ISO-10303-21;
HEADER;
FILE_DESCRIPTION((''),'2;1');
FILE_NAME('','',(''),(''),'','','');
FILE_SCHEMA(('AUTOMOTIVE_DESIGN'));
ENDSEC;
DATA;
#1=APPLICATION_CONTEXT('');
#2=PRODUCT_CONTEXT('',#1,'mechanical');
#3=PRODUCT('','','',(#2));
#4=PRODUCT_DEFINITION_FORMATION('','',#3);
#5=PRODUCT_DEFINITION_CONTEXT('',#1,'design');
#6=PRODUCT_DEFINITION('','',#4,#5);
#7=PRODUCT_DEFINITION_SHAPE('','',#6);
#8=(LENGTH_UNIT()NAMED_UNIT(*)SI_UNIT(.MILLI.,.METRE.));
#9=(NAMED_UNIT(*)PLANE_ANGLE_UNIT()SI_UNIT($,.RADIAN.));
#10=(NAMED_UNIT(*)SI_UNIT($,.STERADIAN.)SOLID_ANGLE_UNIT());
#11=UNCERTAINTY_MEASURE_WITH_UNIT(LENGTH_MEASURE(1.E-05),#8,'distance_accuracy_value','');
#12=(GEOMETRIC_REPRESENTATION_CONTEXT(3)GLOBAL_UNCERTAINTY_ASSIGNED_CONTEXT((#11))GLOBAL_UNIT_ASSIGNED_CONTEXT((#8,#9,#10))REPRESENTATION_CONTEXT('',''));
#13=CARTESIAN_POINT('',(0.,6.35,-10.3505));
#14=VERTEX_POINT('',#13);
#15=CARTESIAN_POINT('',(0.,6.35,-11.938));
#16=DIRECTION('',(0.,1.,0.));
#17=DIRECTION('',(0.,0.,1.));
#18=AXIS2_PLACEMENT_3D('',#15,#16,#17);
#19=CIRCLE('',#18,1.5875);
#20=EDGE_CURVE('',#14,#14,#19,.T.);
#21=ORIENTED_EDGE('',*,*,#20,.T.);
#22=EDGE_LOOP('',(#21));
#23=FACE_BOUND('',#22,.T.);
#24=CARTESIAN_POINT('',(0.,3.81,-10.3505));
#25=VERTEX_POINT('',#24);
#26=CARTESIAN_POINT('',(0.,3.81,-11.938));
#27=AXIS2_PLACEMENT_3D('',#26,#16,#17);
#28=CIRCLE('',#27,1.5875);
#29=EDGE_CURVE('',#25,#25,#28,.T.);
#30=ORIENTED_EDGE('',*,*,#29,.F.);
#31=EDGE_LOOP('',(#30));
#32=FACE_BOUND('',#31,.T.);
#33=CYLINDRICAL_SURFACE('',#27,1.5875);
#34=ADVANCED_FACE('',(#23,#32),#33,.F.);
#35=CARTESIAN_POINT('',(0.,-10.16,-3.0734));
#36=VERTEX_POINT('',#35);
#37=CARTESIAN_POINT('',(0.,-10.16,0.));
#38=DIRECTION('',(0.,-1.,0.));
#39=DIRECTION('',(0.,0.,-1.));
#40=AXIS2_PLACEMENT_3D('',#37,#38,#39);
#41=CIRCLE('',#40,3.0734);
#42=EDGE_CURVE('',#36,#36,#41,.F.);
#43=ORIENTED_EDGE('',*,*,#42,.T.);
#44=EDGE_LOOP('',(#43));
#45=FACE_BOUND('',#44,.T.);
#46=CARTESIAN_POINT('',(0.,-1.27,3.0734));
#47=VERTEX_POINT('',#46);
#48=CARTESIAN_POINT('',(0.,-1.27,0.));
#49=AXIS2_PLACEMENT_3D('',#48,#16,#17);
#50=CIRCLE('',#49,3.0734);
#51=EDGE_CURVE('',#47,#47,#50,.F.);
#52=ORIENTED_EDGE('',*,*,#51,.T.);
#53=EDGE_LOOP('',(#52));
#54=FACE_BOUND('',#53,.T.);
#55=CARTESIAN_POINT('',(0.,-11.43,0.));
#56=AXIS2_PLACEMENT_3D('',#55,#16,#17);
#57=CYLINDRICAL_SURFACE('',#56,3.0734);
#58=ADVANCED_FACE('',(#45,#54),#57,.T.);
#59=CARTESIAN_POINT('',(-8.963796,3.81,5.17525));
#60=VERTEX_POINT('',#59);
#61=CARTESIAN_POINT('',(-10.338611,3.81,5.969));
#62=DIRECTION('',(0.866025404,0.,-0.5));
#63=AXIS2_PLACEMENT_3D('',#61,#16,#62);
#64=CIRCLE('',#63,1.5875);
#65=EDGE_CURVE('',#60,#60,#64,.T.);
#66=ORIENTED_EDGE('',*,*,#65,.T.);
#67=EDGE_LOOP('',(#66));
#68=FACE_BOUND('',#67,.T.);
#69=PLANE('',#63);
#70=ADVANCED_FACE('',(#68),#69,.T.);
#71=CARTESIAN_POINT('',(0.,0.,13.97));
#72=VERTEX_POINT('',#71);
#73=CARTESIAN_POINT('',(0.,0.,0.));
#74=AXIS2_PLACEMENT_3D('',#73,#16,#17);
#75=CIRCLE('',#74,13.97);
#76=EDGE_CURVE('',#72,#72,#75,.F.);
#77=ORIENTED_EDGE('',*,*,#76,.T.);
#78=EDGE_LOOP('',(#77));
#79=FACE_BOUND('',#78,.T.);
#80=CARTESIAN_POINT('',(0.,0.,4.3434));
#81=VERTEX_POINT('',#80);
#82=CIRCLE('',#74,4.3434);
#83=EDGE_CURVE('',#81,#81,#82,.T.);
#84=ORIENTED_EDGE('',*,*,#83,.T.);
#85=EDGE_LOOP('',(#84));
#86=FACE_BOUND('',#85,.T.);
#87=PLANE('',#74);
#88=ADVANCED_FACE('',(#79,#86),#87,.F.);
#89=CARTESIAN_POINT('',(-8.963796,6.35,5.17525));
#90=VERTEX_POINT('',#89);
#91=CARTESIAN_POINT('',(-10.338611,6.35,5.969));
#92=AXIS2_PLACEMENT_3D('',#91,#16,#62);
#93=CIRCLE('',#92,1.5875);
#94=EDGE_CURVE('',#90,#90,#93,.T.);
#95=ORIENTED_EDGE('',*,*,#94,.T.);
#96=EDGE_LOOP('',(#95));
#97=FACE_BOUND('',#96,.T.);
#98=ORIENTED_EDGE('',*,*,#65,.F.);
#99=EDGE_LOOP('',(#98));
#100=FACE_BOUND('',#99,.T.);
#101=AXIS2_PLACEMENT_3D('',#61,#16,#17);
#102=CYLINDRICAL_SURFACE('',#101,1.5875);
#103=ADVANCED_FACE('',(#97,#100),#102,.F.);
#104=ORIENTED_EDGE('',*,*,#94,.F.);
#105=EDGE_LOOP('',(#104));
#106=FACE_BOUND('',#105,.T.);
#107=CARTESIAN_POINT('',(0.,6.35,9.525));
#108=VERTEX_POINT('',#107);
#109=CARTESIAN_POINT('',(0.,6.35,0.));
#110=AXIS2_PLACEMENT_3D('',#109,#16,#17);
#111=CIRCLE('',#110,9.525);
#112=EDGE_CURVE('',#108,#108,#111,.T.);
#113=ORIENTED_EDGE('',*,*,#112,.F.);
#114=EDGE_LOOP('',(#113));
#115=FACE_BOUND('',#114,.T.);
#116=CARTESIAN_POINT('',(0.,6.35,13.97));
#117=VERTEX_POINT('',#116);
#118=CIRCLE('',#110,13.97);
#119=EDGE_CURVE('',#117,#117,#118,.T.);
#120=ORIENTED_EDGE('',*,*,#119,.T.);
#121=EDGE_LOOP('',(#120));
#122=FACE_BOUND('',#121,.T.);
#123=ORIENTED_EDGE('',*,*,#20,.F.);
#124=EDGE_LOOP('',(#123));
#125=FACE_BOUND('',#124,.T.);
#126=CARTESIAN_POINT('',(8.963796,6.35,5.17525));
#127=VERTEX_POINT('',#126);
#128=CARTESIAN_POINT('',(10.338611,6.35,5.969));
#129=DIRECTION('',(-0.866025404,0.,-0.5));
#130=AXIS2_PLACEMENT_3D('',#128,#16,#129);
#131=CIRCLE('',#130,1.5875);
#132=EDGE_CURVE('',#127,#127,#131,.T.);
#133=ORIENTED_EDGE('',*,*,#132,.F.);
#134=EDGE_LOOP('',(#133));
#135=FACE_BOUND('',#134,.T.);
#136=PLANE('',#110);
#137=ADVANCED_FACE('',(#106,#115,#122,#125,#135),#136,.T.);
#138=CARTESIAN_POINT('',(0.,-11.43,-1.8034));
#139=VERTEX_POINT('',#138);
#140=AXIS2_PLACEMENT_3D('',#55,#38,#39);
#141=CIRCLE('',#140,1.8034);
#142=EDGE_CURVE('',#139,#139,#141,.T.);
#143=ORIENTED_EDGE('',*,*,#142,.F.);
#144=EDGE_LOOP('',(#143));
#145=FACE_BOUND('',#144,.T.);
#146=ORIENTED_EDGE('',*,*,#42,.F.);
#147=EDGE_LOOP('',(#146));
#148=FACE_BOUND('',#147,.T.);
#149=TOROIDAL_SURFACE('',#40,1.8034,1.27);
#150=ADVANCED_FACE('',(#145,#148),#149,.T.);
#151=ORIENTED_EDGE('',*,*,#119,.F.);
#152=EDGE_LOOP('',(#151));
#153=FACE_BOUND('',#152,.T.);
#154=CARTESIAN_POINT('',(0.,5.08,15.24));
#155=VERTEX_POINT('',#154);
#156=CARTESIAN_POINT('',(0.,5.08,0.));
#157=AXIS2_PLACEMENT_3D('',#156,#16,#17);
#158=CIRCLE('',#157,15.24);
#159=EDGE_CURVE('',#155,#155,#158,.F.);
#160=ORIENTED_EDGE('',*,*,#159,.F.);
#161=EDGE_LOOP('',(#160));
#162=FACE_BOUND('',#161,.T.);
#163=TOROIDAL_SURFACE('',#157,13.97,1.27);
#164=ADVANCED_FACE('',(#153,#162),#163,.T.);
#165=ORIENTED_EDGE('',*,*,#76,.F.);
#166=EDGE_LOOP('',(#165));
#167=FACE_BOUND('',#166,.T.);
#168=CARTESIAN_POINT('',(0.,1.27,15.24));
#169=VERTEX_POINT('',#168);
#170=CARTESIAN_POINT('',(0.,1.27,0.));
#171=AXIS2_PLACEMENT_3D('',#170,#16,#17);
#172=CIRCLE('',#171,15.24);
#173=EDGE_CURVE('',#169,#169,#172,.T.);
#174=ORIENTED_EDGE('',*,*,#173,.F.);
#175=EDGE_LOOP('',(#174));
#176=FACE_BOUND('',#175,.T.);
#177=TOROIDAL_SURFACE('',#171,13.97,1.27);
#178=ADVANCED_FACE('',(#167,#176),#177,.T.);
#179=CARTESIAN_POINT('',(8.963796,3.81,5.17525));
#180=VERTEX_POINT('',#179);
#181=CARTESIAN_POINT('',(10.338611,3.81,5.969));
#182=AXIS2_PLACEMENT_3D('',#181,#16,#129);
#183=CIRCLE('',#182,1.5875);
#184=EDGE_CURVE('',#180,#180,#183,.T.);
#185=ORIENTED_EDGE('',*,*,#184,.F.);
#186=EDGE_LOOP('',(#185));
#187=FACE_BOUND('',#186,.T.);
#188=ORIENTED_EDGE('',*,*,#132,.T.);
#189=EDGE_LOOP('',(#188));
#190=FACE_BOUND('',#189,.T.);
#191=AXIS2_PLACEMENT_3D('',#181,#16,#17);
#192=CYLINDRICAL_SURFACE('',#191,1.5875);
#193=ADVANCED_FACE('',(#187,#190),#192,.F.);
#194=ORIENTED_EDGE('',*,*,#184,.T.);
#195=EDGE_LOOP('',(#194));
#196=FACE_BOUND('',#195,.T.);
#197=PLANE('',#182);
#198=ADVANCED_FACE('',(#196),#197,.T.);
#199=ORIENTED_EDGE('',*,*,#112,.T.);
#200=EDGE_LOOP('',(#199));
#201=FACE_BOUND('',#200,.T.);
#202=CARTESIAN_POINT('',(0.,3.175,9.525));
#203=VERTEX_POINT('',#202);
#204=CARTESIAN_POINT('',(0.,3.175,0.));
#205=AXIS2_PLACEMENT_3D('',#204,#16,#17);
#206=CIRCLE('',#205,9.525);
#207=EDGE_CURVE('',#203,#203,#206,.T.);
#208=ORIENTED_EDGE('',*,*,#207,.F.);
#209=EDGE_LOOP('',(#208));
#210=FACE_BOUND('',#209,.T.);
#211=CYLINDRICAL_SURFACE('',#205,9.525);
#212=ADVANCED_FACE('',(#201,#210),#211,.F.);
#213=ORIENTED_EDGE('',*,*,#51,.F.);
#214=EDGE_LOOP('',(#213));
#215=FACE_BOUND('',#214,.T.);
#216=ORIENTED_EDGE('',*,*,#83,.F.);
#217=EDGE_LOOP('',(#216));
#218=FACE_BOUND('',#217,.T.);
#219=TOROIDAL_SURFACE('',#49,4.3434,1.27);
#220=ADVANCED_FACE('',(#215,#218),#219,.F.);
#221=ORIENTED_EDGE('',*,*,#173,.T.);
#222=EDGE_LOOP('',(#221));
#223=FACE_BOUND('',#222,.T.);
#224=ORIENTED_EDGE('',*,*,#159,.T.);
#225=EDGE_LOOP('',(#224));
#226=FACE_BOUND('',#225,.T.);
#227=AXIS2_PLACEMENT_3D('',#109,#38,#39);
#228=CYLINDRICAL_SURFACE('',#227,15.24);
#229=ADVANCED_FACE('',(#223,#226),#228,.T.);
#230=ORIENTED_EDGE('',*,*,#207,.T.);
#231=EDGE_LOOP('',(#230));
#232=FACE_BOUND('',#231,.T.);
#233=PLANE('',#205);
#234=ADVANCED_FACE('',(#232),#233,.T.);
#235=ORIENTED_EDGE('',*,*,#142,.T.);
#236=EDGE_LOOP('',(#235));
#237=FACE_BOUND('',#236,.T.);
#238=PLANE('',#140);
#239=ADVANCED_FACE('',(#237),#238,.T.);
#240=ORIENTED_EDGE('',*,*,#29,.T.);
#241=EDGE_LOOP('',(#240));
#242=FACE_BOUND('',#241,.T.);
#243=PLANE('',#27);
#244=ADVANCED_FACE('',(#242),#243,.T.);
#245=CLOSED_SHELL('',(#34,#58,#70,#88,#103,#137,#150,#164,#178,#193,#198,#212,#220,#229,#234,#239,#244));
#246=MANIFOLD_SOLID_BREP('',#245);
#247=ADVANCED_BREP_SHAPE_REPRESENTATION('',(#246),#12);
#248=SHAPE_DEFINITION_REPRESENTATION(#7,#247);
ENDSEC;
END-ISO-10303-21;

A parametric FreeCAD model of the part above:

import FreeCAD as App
import Part
import Sketcher

V = App.Vector
Q = App.Units.Quantity


def edges_at(feature, points):
    """Names of the edges that pass closest to the given points."""
    edges = feature.Shape.Edges
    near = lambda p: min(range(len(edges)), key=lambda i: edges[i].distToShape(Part.Vertex(*p))[0])
    return sorted({f"Edge{near(p) + 1}" for p in points})

doc = App.newDocument("Part")
body = doc.addObject("PartDesign::Body", "Body")

sketch1 = body.newObject("Sketcher::SketchObject", "Sketch")
sketch1.AttachmentSupport = (doc.getObject("XZ_Plane"), [""])
sketch1.MapMode = "FlatFace"
sketch1.addGeometry(Part.Circle(V(0, 0, 0), V(0, 0, 1), 15), False)
sketch1.addConstraint([
    Sketcher.Constraint("Coincident", 0, 3, -1, 1),
    Sketcher.Constraint("Diameter", 0, Q("1.2 in")),
])
pad1 = body.newObject("PartDesign::Pad", "Pad")
pad1.Profile = sketch1
pad1.Length = Q("0.25 in")
pad1.Reversed = True

sketch2 = body.newObject("Sketcher::SketchObject", "Sketch001")
sketch2.AttachmentSupport = (doc.getObject("XZ_Plane"), [""])
sketch2.MapMode = "FlatFace"
sketch2.AttachmentOffset = App.Placement(V(0, 0, -0.25 * 25.4), App.Rotation())
sketch2.addGeometry(Part.Circle(V(0, 0, 0), V(0, 0, 1), 10), False)
sketch2.addConstraint([
    Sketcher.Constraint("Coincident", 0, 3, -1, 1),
    Sketcher.Constraint("Diameter", 0, Q("0.75 in")),
])
pocket1 = body.newObject("PartDesign::Pocket", "Pocket")
pocket1.Profile = sketch2
pocket1.Length = Q("0.125 in")
pocket1.Reversed = True
doc.recompute()

fillet = body.newObject("PartDesign::Fillet", "Fillet")
fillet.Base = (pocket1, edges_at(pocket1, [(0, 6.35, -15.24)]))
fillet.Radius = Q("0.05 in")

sketch3 = body.newObject("Sketcher::SketchObject", "Sketch002")
sketch3.AttachmentSupport = (doc.getObject("XZ_Plane"), [""])
sketch3.MapMode = "FlatFace"
sketch3.addGeometry(Part.Circle(V(0, 0, 0), V(0, 0, 1), 3.1), False)
sketch3.addConstraint([
    Sketcher.Constraint("Coincident", 0, 3, -1, 1),
    Sketcher.Constraint("Diameter", 0, Q("0.242 in")),
])
pad2 = body.newObject("PartDesign::Pad", "Pad001")
pad2.Profile = sketch3
pad2.Length = Q("0.45 in")
doc.recompute()

fillet2 = body.newObject("PartDesign::Fillet", "Fillet001")
fillet2.Base = (pad2, edges_at(pad2, [(0, 0, 3.073), (0, -11.43, 3.073), (0, 0, -15.24)]))
fillet2.Radius = Q("0.05 in")

sketch4 = body.newObject("Sketcher::SketchObject", "Sketch003")
sketch4.AttachmentSupport = (doc.getObject("XZ_Plane"), [""])
sketch4.MapMode = "FlatFace"
sketch4.AttachmentOffset = App.Placement(V(0, 0, -0.25 * 25.4), App.Rotation())
sketch4.addGeometry(Part.Circle(V(0, -11.9, 0), V(0, 0, 1), 1.6), False)
sketch4.addConstraint([
    Sketcher.Constraint("PointOnObject", 0, 3, -2),
    Sketcher.Constraint("Diameter", 0, Q("0.125 in")),
    Sketcher.Constraint("DistanceY", 0, 3, -1, 1, Q("0.47 in")),
])
pocket2 = body.newObject("PartDesign::Pocket", "Pocket001")
pocket2.Profile = sketch4
pocket2.Length = Q("0.1 in")
pocket2.Reversed = True
doc.recompute()

polarpattern = body.newObject("PartDesign::PolarPattern", "PolarPattern")
polarpattern.Originals = [pocket2]
polarpattern.Axis = (doc.getObject("Y_Axis"), [""])
polarpattern.Angle = 360
polarpattern.Occurrences = 3
body.Tip = polarpattern

doc.recompute()
